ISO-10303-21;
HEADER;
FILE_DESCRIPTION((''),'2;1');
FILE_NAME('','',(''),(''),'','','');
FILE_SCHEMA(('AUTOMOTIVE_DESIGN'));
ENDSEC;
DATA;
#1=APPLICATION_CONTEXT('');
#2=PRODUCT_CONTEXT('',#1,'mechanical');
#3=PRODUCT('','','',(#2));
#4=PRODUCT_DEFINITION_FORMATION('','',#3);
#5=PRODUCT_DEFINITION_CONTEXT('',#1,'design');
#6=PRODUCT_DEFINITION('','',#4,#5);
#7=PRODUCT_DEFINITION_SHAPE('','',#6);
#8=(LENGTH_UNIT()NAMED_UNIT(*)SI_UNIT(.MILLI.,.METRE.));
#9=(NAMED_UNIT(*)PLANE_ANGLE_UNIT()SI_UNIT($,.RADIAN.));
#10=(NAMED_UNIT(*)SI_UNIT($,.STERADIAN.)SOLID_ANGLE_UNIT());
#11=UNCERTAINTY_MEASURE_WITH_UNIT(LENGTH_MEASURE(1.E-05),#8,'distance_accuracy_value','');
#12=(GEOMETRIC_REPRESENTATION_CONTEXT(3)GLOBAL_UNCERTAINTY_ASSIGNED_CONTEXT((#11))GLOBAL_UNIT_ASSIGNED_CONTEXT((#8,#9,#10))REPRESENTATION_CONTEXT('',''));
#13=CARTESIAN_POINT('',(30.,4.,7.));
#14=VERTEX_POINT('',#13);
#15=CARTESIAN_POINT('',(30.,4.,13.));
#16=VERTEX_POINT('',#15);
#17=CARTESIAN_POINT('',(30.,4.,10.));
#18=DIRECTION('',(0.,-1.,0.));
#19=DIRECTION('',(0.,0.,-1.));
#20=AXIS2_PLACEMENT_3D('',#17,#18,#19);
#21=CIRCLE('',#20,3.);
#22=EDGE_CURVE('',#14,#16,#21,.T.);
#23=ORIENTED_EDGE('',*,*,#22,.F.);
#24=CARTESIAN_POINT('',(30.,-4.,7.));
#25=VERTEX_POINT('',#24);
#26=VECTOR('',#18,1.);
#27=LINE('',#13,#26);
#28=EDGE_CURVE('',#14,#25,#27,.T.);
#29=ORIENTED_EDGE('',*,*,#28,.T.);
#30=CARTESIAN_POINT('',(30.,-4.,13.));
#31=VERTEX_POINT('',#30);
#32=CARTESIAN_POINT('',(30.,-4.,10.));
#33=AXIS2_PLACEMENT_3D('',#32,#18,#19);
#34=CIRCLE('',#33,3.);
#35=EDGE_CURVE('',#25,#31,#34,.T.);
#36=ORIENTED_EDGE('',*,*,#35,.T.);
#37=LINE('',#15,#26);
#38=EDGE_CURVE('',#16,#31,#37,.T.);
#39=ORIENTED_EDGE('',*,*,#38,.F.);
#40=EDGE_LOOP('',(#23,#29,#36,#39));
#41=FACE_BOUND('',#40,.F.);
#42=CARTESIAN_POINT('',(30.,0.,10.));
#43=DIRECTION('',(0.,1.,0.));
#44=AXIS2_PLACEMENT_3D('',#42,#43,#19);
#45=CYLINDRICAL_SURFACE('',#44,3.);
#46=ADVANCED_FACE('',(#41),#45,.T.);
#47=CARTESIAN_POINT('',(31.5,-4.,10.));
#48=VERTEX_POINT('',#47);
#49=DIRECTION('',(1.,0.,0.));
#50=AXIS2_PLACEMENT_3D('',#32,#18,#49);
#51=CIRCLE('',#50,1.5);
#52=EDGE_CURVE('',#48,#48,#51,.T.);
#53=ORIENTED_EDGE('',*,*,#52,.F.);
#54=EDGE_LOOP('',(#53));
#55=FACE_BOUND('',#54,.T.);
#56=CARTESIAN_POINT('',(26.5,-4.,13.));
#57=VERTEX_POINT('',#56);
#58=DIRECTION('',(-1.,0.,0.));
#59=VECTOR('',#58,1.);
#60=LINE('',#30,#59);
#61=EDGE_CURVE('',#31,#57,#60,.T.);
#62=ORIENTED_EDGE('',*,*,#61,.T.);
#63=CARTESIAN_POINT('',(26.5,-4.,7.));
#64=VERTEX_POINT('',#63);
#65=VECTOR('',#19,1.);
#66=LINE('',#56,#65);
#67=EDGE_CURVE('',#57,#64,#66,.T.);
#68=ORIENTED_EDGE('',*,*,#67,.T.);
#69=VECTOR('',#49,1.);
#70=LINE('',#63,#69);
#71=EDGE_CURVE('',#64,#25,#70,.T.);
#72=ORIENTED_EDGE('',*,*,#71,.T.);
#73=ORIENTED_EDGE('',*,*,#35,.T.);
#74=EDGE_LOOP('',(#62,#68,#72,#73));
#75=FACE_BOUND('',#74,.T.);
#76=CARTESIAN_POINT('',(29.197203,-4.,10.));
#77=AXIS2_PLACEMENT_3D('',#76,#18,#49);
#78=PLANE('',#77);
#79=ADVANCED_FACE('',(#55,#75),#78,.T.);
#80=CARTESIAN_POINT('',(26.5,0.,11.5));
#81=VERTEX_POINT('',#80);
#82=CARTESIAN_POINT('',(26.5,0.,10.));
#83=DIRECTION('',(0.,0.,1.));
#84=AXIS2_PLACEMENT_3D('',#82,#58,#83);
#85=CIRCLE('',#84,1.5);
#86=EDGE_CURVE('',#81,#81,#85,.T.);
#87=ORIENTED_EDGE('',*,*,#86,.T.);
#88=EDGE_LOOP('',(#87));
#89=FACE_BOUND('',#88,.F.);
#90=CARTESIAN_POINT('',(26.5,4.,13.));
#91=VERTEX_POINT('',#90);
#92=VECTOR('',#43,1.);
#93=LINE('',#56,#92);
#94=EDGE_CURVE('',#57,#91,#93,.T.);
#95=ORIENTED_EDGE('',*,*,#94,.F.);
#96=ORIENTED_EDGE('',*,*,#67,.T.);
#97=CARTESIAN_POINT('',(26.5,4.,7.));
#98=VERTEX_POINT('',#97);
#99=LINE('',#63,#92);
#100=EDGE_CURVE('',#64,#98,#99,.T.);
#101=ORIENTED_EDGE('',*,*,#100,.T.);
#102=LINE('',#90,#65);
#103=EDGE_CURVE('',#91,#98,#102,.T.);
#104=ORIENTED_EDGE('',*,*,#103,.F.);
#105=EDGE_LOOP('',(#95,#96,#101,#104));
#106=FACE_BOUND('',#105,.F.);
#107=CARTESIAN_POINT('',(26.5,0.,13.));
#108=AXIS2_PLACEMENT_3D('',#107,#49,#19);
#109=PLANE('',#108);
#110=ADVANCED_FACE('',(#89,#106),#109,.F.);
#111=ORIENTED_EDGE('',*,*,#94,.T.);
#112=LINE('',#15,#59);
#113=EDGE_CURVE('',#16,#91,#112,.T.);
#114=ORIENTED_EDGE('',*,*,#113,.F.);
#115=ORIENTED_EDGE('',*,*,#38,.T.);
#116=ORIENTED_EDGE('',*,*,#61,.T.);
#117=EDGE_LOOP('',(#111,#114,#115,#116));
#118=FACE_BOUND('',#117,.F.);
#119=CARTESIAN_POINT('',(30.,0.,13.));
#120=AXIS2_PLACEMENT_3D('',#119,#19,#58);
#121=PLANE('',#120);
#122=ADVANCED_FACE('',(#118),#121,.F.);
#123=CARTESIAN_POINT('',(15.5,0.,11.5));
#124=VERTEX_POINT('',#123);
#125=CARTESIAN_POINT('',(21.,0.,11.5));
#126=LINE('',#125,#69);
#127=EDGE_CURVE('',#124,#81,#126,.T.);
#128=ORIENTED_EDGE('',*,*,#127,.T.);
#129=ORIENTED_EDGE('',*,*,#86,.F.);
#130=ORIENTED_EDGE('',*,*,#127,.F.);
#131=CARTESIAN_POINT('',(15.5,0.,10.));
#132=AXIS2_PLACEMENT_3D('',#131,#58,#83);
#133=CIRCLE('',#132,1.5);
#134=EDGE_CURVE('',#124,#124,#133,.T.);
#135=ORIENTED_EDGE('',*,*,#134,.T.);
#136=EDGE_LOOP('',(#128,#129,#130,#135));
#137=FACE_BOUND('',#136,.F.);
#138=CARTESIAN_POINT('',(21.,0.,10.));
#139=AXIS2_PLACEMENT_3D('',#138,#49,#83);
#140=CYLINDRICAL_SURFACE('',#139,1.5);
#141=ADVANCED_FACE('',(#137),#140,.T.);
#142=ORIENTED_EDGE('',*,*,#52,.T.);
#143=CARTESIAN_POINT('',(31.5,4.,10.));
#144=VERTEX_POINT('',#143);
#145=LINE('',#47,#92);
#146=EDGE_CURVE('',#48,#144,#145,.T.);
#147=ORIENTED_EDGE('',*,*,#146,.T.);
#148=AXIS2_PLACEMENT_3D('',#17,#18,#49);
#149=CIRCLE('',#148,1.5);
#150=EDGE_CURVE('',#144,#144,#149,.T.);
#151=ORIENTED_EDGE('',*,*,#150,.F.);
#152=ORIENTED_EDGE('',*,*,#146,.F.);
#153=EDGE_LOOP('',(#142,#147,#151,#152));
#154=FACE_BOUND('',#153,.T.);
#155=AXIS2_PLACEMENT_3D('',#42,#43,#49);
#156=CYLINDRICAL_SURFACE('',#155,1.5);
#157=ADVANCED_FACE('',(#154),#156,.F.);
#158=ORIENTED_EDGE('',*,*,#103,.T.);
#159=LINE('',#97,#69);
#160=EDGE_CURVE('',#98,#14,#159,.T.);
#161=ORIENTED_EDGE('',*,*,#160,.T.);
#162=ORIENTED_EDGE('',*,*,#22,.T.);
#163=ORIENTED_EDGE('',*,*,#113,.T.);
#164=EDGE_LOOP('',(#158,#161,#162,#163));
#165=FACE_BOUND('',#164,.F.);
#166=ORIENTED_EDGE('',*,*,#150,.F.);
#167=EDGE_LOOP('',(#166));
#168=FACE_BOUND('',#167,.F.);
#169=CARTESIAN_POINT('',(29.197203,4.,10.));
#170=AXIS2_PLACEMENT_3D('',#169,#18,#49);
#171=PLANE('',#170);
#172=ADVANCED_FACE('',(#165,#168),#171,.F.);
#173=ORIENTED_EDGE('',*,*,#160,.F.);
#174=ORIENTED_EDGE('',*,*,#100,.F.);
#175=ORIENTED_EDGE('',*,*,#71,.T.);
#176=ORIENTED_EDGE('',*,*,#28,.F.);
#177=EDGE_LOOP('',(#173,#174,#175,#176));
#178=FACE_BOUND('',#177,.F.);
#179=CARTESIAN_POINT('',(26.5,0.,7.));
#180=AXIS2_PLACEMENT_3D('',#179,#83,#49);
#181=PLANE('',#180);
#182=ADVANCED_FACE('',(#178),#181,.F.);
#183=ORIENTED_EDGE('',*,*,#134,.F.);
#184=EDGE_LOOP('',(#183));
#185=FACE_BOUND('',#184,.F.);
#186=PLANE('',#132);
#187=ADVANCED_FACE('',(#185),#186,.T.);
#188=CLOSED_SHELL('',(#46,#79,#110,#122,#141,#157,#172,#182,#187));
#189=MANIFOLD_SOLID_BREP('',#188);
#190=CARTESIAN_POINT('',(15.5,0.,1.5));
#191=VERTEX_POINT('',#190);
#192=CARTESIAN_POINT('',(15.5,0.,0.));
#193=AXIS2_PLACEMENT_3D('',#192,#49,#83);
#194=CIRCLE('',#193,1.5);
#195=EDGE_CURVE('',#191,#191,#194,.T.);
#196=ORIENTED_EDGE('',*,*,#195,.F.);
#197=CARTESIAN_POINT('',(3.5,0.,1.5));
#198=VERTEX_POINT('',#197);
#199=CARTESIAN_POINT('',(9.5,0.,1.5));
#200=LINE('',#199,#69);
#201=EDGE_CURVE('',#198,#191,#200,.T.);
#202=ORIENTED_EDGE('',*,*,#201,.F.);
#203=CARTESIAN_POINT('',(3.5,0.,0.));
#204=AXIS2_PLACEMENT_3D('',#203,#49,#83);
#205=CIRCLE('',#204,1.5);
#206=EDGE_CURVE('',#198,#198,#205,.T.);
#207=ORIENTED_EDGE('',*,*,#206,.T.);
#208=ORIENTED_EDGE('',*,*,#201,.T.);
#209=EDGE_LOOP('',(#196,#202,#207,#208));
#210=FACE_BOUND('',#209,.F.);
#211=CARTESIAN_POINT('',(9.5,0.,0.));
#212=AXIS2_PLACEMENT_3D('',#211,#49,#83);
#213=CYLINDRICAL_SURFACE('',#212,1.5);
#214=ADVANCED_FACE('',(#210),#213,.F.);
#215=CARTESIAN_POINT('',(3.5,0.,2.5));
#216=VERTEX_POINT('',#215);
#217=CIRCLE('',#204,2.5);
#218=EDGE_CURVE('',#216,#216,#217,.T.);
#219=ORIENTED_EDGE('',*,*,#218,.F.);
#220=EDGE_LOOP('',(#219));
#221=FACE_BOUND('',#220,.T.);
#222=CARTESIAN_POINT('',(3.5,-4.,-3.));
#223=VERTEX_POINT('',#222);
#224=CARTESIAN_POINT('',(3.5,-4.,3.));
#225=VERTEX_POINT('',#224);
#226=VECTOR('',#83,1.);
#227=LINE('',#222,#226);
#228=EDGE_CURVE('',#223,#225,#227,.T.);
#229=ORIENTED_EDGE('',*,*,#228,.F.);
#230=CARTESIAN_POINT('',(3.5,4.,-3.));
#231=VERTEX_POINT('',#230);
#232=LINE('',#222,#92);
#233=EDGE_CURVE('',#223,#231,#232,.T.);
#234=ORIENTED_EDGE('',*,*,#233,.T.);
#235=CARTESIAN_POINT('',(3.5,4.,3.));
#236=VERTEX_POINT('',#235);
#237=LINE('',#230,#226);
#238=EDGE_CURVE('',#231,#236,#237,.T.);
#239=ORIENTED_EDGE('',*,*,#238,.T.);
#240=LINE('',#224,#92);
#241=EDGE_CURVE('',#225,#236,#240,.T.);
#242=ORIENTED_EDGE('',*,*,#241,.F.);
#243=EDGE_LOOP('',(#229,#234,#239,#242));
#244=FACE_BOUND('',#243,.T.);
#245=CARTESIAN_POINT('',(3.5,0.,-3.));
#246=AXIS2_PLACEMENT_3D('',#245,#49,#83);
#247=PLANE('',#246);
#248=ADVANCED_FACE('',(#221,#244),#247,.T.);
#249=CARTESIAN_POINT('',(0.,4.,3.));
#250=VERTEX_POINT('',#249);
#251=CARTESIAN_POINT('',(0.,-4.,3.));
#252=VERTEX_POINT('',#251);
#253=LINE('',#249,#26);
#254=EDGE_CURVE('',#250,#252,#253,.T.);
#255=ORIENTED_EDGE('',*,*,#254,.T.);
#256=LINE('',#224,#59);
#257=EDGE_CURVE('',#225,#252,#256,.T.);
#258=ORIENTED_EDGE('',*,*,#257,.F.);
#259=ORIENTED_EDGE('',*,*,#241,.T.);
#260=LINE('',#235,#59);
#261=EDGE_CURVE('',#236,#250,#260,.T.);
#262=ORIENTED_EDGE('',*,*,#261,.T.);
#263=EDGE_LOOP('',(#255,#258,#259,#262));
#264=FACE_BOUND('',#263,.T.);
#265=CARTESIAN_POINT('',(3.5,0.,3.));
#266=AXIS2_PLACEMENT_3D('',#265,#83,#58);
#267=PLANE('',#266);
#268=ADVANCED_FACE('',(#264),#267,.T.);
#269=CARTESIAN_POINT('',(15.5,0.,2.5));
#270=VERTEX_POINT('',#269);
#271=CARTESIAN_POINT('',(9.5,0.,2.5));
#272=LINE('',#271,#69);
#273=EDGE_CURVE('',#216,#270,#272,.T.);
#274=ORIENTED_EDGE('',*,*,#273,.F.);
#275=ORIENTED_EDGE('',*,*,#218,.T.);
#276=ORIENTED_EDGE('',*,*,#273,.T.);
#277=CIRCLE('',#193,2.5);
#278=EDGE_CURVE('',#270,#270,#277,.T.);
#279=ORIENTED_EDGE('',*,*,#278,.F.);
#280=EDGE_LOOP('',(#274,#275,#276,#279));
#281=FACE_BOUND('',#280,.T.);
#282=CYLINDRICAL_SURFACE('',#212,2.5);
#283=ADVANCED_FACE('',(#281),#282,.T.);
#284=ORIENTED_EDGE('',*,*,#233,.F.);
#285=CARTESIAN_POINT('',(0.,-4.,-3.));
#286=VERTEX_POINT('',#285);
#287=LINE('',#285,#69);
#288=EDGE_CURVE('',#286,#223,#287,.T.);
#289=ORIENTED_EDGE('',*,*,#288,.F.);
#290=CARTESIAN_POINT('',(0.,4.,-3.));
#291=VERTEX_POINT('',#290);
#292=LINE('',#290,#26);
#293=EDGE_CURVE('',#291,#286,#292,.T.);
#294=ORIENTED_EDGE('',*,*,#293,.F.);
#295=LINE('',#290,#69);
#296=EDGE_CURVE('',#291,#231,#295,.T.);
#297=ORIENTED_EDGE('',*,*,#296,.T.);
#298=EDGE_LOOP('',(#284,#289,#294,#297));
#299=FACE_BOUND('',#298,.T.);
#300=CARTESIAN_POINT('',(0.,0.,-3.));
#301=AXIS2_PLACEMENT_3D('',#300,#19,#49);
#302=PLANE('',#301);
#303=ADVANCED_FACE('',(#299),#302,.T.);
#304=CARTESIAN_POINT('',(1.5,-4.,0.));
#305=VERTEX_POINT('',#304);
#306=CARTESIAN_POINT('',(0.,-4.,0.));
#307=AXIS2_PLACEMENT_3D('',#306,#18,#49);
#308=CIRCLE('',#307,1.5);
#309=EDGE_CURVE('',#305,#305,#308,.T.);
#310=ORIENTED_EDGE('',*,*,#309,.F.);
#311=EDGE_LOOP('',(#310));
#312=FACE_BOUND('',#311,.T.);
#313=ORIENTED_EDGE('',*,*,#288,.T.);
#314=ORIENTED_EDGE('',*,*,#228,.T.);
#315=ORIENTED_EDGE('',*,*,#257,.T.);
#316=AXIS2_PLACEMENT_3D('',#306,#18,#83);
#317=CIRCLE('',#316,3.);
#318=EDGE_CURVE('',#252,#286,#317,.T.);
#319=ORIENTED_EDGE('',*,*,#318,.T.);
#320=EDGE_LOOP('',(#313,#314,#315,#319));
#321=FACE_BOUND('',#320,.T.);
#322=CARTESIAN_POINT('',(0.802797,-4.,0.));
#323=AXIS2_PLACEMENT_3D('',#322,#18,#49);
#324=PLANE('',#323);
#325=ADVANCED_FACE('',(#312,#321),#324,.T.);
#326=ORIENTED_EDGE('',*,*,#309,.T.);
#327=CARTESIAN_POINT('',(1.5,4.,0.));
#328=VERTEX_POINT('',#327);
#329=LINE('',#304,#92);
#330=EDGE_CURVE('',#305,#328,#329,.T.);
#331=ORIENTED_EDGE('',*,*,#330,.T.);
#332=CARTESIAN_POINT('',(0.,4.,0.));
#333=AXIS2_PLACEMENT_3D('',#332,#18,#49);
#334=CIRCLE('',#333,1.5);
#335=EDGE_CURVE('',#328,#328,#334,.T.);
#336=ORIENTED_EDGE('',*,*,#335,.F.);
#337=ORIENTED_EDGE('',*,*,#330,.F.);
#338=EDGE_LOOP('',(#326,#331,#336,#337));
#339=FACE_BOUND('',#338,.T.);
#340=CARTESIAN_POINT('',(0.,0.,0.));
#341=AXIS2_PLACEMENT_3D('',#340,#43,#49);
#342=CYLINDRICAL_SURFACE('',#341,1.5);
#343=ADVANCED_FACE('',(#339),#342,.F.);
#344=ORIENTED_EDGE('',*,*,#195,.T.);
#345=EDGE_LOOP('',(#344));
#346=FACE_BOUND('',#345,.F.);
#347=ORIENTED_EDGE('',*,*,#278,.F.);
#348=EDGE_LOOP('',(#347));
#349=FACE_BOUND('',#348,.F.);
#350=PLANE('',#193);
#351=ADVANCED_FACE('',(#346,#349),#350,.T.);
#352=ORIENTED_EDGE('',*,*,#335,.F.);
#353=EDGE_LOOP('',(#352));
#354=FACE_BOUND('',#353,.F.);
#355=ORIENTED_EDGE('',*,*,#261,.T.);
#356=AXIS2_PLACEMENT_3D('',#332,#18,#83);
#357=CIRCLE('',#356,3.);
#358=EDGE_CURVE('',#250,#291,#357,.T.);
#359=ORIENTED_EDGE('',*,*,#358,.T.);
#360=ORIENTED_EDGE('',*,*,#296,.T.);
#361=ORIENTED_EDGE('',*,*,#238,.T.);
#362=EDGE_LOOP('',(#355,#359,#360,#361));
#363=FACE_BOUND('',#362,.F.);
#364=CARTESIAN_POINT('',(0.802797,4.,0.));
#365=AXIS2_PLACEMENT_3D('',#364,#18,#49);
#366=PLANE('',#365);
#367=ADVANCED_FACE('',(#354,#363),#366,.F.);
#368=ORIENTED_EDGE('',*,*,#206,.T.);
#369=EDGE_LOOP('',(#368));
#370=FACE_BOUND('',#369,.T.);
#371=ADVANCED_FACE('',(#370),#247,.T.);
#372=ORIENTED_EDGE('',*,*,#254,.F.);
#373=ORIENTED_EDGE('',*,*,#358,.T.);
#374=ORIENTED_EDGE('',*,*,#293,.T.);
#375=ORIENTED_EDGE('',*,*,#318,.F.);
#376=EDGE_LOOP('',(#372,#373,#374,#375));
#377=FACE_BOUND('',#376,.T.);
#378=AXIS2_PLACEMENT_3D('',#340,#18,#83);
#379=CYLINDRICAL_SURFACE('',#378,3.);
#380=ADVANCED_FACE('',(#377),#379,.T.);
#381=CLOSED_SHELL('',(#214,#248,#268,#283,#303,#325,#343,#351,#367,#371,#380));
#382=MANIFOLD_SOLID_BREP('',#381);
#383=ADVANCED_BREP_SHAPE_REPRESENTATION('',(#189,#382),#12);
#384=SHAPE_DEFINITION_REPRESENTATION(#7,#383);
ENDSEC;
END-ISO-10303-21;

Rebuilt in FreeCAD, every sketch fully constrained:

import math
import FreeCAD as App
import Part
import Sketcher

V = App.Vector
Q = App.Units.Quantity


def add_polygon(sketch, points):
    """Adds a closed chain of lines whose ends are joined by coincident constraints."""
    first, n = sketch.GeometryCount, len(points)
    for a, b in zip(points, points[1:] + points[:1]):
        sketch.addGeometry(Part.LineSegment(App.Vector(*a, 0), App.Vector(*b, 0)), False)
    for i in range(n):
        sketch.addConstraint(Sketcher.Constraint("Coincident", first + i, 2, first + (i + 1) % n, 1))

doc = App.newDocument("Part")
body = doc.addObject("PartDesign::Body", "Body")
body.AllowCompound = True

sketch1 = body.newObject("Sketcher::SketchObject", "Sketch")
sketch1.AttachmentSupport = (doc.getObject("XZ_Plane"), [""])
sketch1.MapMode = "FlatFace"
sketch1.addGeometry(Part.LineSegment(V(26.5, 7, 0), V(30, 7, 0)), False)
sketch1.addGeometry(Part.ArcOfCircle(Part.Circle(V(30, 10, 0), V(0, 0, 1), 3), math.radians(-90), math.radians(90)), False)
sketch1.addGeometry(Part.LineSegment(V(30, 13, 0), V(26.5, 13, 0)), False)
sketch1.addGeometry(Part.LineSegment(V(26.5, 13, 0), V(26.5, 7, 0)), False)
sketch1.addGeometry(Part.Circle(V(30, 10, 0), V(0, 0, 1), 1.5), False)
sketch1.addGeometry(Part.LineSegment(V(3.5, 3, 0), V(0, 3, 0)), False)
sketch1.addGeometry(Part.ArcOfCircle(Part.Circle(V(0, 0, 0), V(0, 0, 1), 3), math.radians(90), math.radians(270)), False)
sketch1.addGeometry(Part.LineSegment(V(0, -3, 0), V(3.5, -3, 0)), False)
sketch1.addGeometry(Part.LineSegment(V(3.5, -3, 0), V(3.5, 3, 0)), False)
sketch1.addGeometry(Part.Circle(V(0, 0, 0), V(0, 0, 1), 1.5), False)
sketch1.addConstraint(Sketcher.Constraint("Tangent", 0, 2, 1, 1))
sketch1.addConstraint(Sketcher.Constraint("Tangent", 1, 2, 2, 1))
sketch1.addConstraint(Sketcher.Constraint("Coincident", 2, 2, 3, 1))
sketch1.addConstraint(Sketcher.Constraint("Coincident", 3, 2, 0, 1))
sketch1.addConstraint(Sketcher.Constraint("Tangent", 5, 2, 6, 1))
sketch1.addConstraint(Sketcher.Constraint("Tangent", 6, 2, 7, 1))
sketch1.addConstraint(Sketcher.Constraint("Coincident", 7, 2, 8, 1))
sketch1.addConstraint(Sketcher.Constraint("Coincident", 8, 2, 5, 1))
sketch1.addConstraint(Sketcher.Constraint("Horizontal", 0))
sketch1.addConstraint(Sketcher.Constraint("Horizontal", 2))
sketch1.addConstraint(Sketcher.Constraint("Vertical", 3))
sketch1.addConstraint(Sketcher.Constraint("Horizontal", 5))
sketch1.addConstraint(Sketcher.Constraint("Horizontal", 7))
sketch1.addConstraint(Sketcher.Constraint("Vertical", 8))
sketch1.addConstraint(Sketcher.Constraint("Coincident", 6, 3, -1, 1))
sketch1.addConstraint(Sketcher.Constraint("Coincident", 9, 3, -1, 1))
sketch1.addConstraint(Sketcher.Constraint("Coincident", 4, 3, 1, 3))
sketch1.addConstraint(Sketcher.Constraint("Equal", 1, 6))
sketch1.addConstraint(Sketcher.Constraint("Equal", 4, 9))
sketch1.addConstraint(Sketcher.Constraint("Equal", 2, 5))
sketch1.addConstraint(Sketcher.Constraint("Diameter", 4, Q("3 mm")))
sketch1.addConstraint(Sketcher.Constraint("Radius", 1, Q("3 mm")))
sketch1.addConstraint(Sketcher.Constraint("DistanceX", 0, 1, 0, 2, Q("3.5 mm")))
sketch1.addConstraint(Sketcher.Constraint("DistanceX", -1, 1, 1, 3, Q("30 mm")))
sketch1.addConstraint(Sketcher.Constraint("DistanceY", -1, 1, 1, 3, Q("10 mm")))
pad1 = body.newObject("PartDesign::Pad", "Pad")
pad1.Profile = sketch1
pad1.Length = 8
pad1.Midplane = True

sketch2 = body.newObject("Sketcher::SketchObject", "Sketch001")
sketch2.AttachmentSupport = (doc.getObject("XZ_Plane"), [""])
sketch2.MapMode = "FlatFace"
add_polygon(sketch2, [(3.5, 2.5), (3.5, 1.5), (15.5, 1.5), (15.5, 2.5)])
sketch2.addConstraint(Sketcher.Constraint("Vertical", 0))
sketch2.addConstraint(Sketcher.Constraint("Horizontal", 1))
sketch2.addConstraint(Sketcher.Constraint("Vertical", 2))
sketch2.addConstraint(Sketcher.Constraint("Horizontal", 3))
sketch2.addConstraint(Sketcher.Constraint("DistanceX", 1, 1, 1, 2, Q("12 mm")))
sketch2.addConstraint(Sketcher.Constraint("DistanceY", 0, 2, 0, 1, Q("1 mm")))
sketch2.addConstraint(Sketcher.Constraint("DistanceX", -1, 1, 0, 2, Q("3.5 mm")))
sketch2.addConstraint(Sketcher.Constraint("DistanceY", -1, 1, 0, 2, Q("1.5 mm")))
revolution = body.newObject("PartDesign::Revolution", "Revolution")
revolution.Profile = sketch2
revolution.ReferenceAxis = (sketch2, ["H_Axis"])
revolution.Angle = 360

sketch3 = body.newObject("Sketcher::SketchObject", "Sketch002")
sketch3.AttachmentSupport = (doc.getObject("XZ_Plane"), [""])
sketch3.MapMode = "FlatFace"
add_polygon(sketch3, [(15.5, 11.5), (15.5, 10), (26.5, 10), (26.5, 11.5)])
sketch3.addGeometry(Part.LineSegment(V(26.5, 10, 0), V(15.5, 10, 0)), True)
sketch3.addConstraint(Sketcher.Constraint("Vertical", 0))
sketch3.addConstraint(Sketcher.Constraint("Horizontal", 1))
sketch3.addConstraint(Sketcher.Constraint("Vertical", 2))
sketch3.addConstraint(Sketcher.Constraint("Horizontal", 3))
sketch3.addConstraint(Sketcher.Constraint("Horizontal", 4))
sketch3.addConstraint(Sketcher.Constraint("Coincident", 4, 1, 1, 2))
sketch3.addConstraint(Sketcher.Constraint("Vertical", 3, 2, 4, 2))
sketch3.addConstraint(Sketcher.Constraint("DistanceX", 1, 1, 1, 2, Q("11 mm")))
sketch3.addConstraint(Sketcher.Constraint("DistanceY", 0, 2, 0, 1, Q("1.5 mm")))
sketch3.addConstraint(Sketcher.Constraint("DistanceY", -1, 1, 0, 2, Q("10 mm")))
sketch3.addConstraint(Sketcher.Constraint("DistanceX", -1, 1, 0, 2, Q("15.5 mm")))
revolution2 = body.newObject("PartDesign::Revolution", "Revolution001")
revolution2.Profile = sketch3
revolution2.ReferenceAxis = (sketch3, ["Axis0"])
revolution2.Angle = 360

doc.recompute()
